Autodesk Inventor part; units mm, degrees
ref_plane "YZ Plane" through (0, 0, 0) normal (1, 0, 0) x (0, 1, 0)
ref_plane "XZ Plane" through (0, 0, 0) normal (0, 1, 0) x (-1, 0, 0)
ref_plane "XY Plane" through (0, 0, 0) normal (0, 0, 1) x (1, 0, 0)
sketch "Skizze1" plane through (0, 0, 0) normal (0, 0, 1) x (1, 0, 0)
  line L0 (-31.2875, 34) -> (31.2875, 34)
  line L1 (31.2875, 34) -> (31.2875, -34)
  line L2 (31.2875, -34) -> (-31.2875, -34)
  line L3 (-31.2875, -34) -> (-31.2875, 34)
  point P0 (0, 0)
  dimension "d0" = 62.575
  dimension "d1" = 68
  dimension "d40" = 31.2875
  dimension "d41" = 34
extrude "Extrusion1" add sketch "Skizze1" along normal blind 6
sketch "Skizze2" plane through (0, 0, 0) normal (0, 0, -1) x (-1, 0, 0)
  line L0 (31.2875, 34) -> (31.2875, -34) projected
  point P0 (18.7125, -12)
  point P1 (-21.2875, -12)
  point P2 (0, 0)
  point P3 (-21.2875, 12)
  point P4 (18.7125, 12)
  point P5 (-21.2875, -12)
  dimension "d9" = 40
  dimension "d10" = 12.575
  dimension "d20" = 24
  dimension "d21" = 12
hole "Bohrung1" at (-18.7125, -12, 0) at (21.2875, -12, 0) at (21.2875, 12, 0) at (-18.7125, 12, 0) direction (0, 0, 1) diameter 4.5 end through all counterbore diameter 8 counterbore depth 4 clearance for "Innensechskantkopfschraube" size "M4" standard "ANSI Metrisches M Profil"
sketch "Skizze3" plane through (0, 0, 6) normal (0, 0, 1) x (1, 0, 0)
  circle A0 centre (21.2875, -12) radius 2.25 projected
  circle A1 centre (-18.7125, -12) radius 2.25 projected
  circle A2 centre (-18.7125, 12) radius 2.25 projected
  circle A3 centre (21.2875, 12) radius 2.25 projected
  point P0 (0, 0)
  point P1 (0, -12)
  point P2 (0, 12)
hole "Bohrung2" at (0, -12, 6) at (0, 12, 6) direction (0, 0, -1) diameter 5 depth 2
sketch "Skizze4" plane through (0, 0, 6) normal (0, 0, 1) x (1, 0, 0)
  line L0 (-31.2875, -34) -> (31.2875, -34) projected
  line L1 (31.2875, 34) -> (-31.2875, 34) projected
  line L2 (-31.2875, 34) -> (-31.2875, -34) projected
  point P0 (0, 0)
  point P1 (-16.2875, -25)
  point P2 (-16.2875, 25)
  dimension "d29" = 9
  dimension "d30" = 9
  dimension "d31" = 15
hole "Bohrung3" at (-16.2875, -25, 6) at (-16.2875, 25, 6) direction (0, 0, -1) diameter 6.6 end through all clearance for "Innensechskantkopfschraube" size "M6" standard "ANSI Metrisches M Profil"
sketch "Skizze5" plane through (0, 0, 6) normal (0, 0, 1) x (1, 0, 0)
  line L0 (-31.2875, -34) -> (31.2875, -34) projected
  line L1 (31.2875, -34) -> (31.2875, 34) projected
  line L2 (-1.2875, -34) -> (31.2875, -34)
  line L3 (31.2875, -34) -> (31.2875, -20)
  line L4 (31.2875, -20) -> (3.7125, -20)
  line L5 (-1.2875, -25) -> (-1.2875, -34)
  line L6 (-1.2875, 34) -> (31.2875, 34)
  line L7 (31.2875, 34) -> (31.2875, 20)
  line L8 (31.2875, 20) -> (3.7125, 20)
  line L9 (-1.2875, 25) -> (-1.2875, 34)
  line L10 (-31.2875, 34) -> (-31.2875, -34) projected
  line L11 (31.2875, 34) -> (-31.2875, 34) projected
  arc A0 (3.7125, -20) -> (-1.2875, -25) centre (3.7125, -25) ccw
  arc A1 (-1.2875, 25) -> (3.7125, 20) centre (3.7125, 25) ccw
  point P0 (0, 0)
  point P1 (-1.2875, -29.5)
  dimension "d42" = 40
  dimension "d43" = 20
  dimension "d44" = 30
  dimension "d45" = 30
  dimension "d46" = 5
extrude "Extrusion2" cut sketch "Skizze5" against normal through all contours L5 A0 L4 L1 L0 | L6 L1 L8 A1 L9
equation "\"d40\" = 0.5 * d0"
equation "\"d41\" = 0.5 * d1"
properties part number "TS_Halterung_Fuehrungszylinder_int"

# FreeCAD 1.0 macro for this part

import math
import FreeCAD as App
import Part
import Sketcher

V = App.Vector

doc = App.newDocument("Part")
body = doc.addObject("PartDesign::Body", "Body")

# Sketch on XY plane
sketch1 = body.newObject("Sketcher::SketchObject", "Sketch")
sketch1.AttachmentSupport = (doc.getObject("XY_Plane"), [""])
sketch1.MapMode = "FlatFace"
sketch1.addGeometry([
    Part.LineSegment(V(31.2875, 34, 0), V(-31.2875, 34, 0)),
    Part.LineSegment(V(-31.2875, 34, 0), V(-31.2875, -34, 0)),
    Part.LineSegment(V(-31.2875, -34, 0), V(31.2875, -34, 0)),
    Part.LineSegment(V(31.2875, -34, 0), V(31.2875, 34, 0)),
], False)
sketch1.addConstraint([
    Sketcher.Constraint("Coincident", 0, 2, 1, 1),
    Sketcher.Constraint("Coincident", 1, 2, 2, 1),
    Sketcher.Constraint("Coincident", 2, 2, 3, 1),
    Sketcher.Constraint("Coincident", 3, 2, 0, 1),
    Sketcher.Constraint("Horizontal", 0),
    Sketcher.Constraint("Vertical", 1),
    Sketcher.Constraint("Horizontal", 2),
    Sketcher.Constraint("Vertical", 3),
    Sketcher.Constraint("Symmetric", 0, 2, 2, 2, -1, 1),
    Sketcher.Constraint("DistanceY", 1, 2, 1, 1, 68.0),
    Sketcher.Constraint("DistanceX", 0, 2, 0, 1, 62.575),
])
pad1 = body.newObject("PartDesign::Pad", "Pad")
pad1.Profile = sketch1
pad1.Length = 6

# Sketch on XY plane
sketch2 = body.newObject("Sketcher::SketchObject", "Sketch001")
sketch2.AttachmentSupport = (doc.getObject("XY_Plane"), [""])
sketch2.MapMode = "FlatFace"
sketch2.addGeometry([
    Part.Circle(V(-18.7125, -12, 0), V(0, 0, 1), 2.25),
    Part.Circle(V(21.2875, -12, 0), V(0, 0, 1), 2.25),
    Part.Circle(V(21.2875, 12, 0), V(0, 0, 1), 2.25),
    Part.Circle(V(-18.7125, 12, 0), V(0, 0, 1), 2.25),
], False)
sketch2.addConstraint([
    Sketcher.Constraint("Equal", 0, 1),
    Sketcher.Constraint("Equal", 1, 2),
    Sketcher.Constraint("Equal", 2, 3),
    Sketcher.Constraint("Symmetric", 1, 3, 2, 3, -1),
    Sketcher.Constraint("Symmetric", 0, 3, 3, 3, -1),
    Sketcher.Constraint("Horizontal", 0, 3, 1, 3),
    Sketcher.Constraint("Diameter", 0, 4.5),
    Sketcher.Constraint("DistanceY", 0, 3, -1, 1, 12.0),
    Sketcher.Constraint("DistanceX", 0, 3, 1, 3, 40.0),
    Sketcher.Constraint("DistanceX", 0, 3, -1, 1, 18.7125),
])
doc.recompute()
hole = body.newObject("PartDesign::Hole", "Hole")
hole.Profile = sketch2
hole.ThreadType = "None"
hole.Diameter = 4.5
hole.DepthType = "ThroughAll"
hole.HoleCutType = "Counterbore"
hole.HoleCutDiameter = 8
hole.HoleCutDepth = 4
hole.Reversed = True

# Sketch on XY plane
sketch3 = body.newObject("Sketcher::SketchObject", "Sketch002")
sketch3.AttachmentSupport = (doc.getObject("XY_Plane"), [""])
sketch3.MapMode = "FlatFace"
sketch3.AttachmentOffset = App.Placement(V(0, 0, 6), App.Rotation())
sketch3.addGeometry([
    Part.Circle(V(0, -12, 0), V(0, 0, 1), 2.5),
    Part.Circle(V(0, 12, 0), V(0, 0, 1), 2.5),
], False)
sketch3.addConstraint([
    Sketcher.Constraint("Equal", 0, 1),
    Sketcher.Constraint("Symmetric", 0, 3, 1, 3, -1, 1),
    Sketcher.Constraint("PointOnObject", 0, 3, -2),
    Sketcher.Constraint("Diameter", 0, 5.0),
    Sketcher.Constraint("DistanceY", 0, 3, -1, 1, 12.0),
])
doc.recompute()
hole2 = body.newObject("PartDesign::Hole", "Hole001")
hole2.Profile = sketch3
hole2.ThreadType = "None"
hole2.Diameter = 5
hole2.DepthType = "Dimension"
hole2.Depth = 2
hole2.DrillPoint = "Flat"

# Sketch on XY plane
sketch4 = body.newObject("Sketcher::SketchObject", "Sketch003")
sketch4.AttachmentSupport = (doc.getObject("XY_Plane"), [""])
sketch4.MapMode = "FlatFace"
sketch4.AttachmentOffset = App.Placement(V(0, 0, 6), App.Rotation())
sketch4.addGeometry([
    Part.Circle(V(-16.2875, -25, 0), V(0, 0, 1), 3.3),
    Part.Circle(V(-16.2875, 25, 0), V(0, 0, 1), 3.3),
], False)
sketch4.addConstraint([
    Sketcher.Constraint("Equal", 0, 1),
    Sketcher.Constraint("Symmetric", 0, 3, 1, 3, -1),
    Sketcher.Constraint("Diameter", 0, 6.6),
    Sketcher.Constraint("DistanceY", 0, 3, -1, 1, 25.0),
    Sketcher.Constraint("DistanceX", 0, 3, -1, 1, 16.2875),
])
doc.recompute()
hole3 = body.newObject("PartDesign::Hole", "Hole002")
hole3.Profile = sketch4
hole3.ThreadType = "None"
hole3.Diameter = 6.6
hole3.DepthType = "ThroughAll"

# Sketch on XY plane
sketch5 = body.newObject("Sketcher::SketchObject", "Sketch004")
sketch5.AttachmentSupport = (doc.getObject("XY_Plane"), [""])
sketch5.MapMode = "FlatFace"
sketch5.AttachmentOffset = App.Placement(V(0, 0, 6), App.Rotation())
sketch5.addGeometry([
    Part.LineSegment(V(-1.2875, -25, 0), V(-1.2875, -34, 0)),  # 0
    Part.LineSegment(V(-1.2875, -34, 0), V(31.2875, -34, 0)),  # 1
    Part.LineSegment(V(31.2875, -34, 0), V(31.2875, -20, 0)),  # 2
    Part.LineSegment(V(31.2875, -20, 0), V(3.7125, -20, 0)),  # 3
    Part.ArcOfCircle(Part.Circle(V(3.7125, -25, 0), V(0, 0, 1), 5), math.radians(90), math.radians(180)),  # 4
    Part.LineSegment(V(31.2875, 34, 0), V(-1.2875, 34, 0)),  # 5
    Part.LineSegment(V(-1.2875, 34, 0), V(-1.2875, 25, 0)),  # 6
    Part.ArcOfCircle(Part.Circle(V(3.7125, 25, 0), V(0, 0, 1), 5), math.radians(180), math.radians(270)),  # 7
    Part.LineSegment(V(3.7125, 20, 0), V(31.2875, 20, 0)),  # 8
    Part.LineSegment(V(31.2875, 20, 0), V(31.2875, 34, 0)),  # 9
], False)
sketch5.addConstraint([
    Sketcher.Constraint("Coincident", 0, 2, 1, 1),
    Sketcher.Constraint("Coincident", 1, 2, 2, 1),
    Sketcher.Constraint("Coincident", 2, 2, 3, 1),
    Sketcher.Constraint("Tangent", 3, 2, 4, 1),
    Sketcher.Constraint("Tangent", 4, 2, 0, 1),
    Sketcher.Constraint("Coincident", 5, 2, 6, 1),
    Sketcher.Constraint("Tangent", 6, 2, 7, 1),
    Sketcher.Constraint("Tangent", 7, 2, 8, 1),
    Sketcher.Constraint("Coincident", 8, 2, 9, 1),
    Sketcher.Constraint("Coincident", 9, 2, 5, 1),
    Sketcher.Constraint("Vertical", 0),
    Sketcher.Constraint("Horizontal", 1),
    Sketcher.Constraint("Vertical", 2),
    Sketcher.Constraint("Horizontal", 3),
    Sketcher.Constraint("Horizontal", 5),
    Sketcher.Constraint("Vertical", 6),
    Sketcher.Constraint("Horizontal", 8),
    Sketcher.Constraint("Vertical", 9),
    Sketcher.Constraint("Equal", 4, 7),
    Sketcher.Constraint("Symmetric", 4, 3, 7, 3, -1),
    Sketcher.Constraint("Symmetric", 1, 2, 9, 2, -1),
    Sketcher.Constraint("Radius", 4, 5.0),
    Sketcher.Constraint("DistanceY", 2, 2, -1, 1, 20.0),
    Sketcher.Constraint("DistanceY", 0, 2, 0, 1, 9.0),
    Sketcher.Constraint("DistanceX", 1, 1, 1, 2, 32.575),
    Sketcher.Constraint("DistanceX", -1, 1, 4, 3, 3.7125),
])
pocket1 = body.newObject("PartDesign::Pocket", "Pocket")
pocket1.Profile = sketch5
pocket1.Type = "ThroughAll"

doc.recompute()
